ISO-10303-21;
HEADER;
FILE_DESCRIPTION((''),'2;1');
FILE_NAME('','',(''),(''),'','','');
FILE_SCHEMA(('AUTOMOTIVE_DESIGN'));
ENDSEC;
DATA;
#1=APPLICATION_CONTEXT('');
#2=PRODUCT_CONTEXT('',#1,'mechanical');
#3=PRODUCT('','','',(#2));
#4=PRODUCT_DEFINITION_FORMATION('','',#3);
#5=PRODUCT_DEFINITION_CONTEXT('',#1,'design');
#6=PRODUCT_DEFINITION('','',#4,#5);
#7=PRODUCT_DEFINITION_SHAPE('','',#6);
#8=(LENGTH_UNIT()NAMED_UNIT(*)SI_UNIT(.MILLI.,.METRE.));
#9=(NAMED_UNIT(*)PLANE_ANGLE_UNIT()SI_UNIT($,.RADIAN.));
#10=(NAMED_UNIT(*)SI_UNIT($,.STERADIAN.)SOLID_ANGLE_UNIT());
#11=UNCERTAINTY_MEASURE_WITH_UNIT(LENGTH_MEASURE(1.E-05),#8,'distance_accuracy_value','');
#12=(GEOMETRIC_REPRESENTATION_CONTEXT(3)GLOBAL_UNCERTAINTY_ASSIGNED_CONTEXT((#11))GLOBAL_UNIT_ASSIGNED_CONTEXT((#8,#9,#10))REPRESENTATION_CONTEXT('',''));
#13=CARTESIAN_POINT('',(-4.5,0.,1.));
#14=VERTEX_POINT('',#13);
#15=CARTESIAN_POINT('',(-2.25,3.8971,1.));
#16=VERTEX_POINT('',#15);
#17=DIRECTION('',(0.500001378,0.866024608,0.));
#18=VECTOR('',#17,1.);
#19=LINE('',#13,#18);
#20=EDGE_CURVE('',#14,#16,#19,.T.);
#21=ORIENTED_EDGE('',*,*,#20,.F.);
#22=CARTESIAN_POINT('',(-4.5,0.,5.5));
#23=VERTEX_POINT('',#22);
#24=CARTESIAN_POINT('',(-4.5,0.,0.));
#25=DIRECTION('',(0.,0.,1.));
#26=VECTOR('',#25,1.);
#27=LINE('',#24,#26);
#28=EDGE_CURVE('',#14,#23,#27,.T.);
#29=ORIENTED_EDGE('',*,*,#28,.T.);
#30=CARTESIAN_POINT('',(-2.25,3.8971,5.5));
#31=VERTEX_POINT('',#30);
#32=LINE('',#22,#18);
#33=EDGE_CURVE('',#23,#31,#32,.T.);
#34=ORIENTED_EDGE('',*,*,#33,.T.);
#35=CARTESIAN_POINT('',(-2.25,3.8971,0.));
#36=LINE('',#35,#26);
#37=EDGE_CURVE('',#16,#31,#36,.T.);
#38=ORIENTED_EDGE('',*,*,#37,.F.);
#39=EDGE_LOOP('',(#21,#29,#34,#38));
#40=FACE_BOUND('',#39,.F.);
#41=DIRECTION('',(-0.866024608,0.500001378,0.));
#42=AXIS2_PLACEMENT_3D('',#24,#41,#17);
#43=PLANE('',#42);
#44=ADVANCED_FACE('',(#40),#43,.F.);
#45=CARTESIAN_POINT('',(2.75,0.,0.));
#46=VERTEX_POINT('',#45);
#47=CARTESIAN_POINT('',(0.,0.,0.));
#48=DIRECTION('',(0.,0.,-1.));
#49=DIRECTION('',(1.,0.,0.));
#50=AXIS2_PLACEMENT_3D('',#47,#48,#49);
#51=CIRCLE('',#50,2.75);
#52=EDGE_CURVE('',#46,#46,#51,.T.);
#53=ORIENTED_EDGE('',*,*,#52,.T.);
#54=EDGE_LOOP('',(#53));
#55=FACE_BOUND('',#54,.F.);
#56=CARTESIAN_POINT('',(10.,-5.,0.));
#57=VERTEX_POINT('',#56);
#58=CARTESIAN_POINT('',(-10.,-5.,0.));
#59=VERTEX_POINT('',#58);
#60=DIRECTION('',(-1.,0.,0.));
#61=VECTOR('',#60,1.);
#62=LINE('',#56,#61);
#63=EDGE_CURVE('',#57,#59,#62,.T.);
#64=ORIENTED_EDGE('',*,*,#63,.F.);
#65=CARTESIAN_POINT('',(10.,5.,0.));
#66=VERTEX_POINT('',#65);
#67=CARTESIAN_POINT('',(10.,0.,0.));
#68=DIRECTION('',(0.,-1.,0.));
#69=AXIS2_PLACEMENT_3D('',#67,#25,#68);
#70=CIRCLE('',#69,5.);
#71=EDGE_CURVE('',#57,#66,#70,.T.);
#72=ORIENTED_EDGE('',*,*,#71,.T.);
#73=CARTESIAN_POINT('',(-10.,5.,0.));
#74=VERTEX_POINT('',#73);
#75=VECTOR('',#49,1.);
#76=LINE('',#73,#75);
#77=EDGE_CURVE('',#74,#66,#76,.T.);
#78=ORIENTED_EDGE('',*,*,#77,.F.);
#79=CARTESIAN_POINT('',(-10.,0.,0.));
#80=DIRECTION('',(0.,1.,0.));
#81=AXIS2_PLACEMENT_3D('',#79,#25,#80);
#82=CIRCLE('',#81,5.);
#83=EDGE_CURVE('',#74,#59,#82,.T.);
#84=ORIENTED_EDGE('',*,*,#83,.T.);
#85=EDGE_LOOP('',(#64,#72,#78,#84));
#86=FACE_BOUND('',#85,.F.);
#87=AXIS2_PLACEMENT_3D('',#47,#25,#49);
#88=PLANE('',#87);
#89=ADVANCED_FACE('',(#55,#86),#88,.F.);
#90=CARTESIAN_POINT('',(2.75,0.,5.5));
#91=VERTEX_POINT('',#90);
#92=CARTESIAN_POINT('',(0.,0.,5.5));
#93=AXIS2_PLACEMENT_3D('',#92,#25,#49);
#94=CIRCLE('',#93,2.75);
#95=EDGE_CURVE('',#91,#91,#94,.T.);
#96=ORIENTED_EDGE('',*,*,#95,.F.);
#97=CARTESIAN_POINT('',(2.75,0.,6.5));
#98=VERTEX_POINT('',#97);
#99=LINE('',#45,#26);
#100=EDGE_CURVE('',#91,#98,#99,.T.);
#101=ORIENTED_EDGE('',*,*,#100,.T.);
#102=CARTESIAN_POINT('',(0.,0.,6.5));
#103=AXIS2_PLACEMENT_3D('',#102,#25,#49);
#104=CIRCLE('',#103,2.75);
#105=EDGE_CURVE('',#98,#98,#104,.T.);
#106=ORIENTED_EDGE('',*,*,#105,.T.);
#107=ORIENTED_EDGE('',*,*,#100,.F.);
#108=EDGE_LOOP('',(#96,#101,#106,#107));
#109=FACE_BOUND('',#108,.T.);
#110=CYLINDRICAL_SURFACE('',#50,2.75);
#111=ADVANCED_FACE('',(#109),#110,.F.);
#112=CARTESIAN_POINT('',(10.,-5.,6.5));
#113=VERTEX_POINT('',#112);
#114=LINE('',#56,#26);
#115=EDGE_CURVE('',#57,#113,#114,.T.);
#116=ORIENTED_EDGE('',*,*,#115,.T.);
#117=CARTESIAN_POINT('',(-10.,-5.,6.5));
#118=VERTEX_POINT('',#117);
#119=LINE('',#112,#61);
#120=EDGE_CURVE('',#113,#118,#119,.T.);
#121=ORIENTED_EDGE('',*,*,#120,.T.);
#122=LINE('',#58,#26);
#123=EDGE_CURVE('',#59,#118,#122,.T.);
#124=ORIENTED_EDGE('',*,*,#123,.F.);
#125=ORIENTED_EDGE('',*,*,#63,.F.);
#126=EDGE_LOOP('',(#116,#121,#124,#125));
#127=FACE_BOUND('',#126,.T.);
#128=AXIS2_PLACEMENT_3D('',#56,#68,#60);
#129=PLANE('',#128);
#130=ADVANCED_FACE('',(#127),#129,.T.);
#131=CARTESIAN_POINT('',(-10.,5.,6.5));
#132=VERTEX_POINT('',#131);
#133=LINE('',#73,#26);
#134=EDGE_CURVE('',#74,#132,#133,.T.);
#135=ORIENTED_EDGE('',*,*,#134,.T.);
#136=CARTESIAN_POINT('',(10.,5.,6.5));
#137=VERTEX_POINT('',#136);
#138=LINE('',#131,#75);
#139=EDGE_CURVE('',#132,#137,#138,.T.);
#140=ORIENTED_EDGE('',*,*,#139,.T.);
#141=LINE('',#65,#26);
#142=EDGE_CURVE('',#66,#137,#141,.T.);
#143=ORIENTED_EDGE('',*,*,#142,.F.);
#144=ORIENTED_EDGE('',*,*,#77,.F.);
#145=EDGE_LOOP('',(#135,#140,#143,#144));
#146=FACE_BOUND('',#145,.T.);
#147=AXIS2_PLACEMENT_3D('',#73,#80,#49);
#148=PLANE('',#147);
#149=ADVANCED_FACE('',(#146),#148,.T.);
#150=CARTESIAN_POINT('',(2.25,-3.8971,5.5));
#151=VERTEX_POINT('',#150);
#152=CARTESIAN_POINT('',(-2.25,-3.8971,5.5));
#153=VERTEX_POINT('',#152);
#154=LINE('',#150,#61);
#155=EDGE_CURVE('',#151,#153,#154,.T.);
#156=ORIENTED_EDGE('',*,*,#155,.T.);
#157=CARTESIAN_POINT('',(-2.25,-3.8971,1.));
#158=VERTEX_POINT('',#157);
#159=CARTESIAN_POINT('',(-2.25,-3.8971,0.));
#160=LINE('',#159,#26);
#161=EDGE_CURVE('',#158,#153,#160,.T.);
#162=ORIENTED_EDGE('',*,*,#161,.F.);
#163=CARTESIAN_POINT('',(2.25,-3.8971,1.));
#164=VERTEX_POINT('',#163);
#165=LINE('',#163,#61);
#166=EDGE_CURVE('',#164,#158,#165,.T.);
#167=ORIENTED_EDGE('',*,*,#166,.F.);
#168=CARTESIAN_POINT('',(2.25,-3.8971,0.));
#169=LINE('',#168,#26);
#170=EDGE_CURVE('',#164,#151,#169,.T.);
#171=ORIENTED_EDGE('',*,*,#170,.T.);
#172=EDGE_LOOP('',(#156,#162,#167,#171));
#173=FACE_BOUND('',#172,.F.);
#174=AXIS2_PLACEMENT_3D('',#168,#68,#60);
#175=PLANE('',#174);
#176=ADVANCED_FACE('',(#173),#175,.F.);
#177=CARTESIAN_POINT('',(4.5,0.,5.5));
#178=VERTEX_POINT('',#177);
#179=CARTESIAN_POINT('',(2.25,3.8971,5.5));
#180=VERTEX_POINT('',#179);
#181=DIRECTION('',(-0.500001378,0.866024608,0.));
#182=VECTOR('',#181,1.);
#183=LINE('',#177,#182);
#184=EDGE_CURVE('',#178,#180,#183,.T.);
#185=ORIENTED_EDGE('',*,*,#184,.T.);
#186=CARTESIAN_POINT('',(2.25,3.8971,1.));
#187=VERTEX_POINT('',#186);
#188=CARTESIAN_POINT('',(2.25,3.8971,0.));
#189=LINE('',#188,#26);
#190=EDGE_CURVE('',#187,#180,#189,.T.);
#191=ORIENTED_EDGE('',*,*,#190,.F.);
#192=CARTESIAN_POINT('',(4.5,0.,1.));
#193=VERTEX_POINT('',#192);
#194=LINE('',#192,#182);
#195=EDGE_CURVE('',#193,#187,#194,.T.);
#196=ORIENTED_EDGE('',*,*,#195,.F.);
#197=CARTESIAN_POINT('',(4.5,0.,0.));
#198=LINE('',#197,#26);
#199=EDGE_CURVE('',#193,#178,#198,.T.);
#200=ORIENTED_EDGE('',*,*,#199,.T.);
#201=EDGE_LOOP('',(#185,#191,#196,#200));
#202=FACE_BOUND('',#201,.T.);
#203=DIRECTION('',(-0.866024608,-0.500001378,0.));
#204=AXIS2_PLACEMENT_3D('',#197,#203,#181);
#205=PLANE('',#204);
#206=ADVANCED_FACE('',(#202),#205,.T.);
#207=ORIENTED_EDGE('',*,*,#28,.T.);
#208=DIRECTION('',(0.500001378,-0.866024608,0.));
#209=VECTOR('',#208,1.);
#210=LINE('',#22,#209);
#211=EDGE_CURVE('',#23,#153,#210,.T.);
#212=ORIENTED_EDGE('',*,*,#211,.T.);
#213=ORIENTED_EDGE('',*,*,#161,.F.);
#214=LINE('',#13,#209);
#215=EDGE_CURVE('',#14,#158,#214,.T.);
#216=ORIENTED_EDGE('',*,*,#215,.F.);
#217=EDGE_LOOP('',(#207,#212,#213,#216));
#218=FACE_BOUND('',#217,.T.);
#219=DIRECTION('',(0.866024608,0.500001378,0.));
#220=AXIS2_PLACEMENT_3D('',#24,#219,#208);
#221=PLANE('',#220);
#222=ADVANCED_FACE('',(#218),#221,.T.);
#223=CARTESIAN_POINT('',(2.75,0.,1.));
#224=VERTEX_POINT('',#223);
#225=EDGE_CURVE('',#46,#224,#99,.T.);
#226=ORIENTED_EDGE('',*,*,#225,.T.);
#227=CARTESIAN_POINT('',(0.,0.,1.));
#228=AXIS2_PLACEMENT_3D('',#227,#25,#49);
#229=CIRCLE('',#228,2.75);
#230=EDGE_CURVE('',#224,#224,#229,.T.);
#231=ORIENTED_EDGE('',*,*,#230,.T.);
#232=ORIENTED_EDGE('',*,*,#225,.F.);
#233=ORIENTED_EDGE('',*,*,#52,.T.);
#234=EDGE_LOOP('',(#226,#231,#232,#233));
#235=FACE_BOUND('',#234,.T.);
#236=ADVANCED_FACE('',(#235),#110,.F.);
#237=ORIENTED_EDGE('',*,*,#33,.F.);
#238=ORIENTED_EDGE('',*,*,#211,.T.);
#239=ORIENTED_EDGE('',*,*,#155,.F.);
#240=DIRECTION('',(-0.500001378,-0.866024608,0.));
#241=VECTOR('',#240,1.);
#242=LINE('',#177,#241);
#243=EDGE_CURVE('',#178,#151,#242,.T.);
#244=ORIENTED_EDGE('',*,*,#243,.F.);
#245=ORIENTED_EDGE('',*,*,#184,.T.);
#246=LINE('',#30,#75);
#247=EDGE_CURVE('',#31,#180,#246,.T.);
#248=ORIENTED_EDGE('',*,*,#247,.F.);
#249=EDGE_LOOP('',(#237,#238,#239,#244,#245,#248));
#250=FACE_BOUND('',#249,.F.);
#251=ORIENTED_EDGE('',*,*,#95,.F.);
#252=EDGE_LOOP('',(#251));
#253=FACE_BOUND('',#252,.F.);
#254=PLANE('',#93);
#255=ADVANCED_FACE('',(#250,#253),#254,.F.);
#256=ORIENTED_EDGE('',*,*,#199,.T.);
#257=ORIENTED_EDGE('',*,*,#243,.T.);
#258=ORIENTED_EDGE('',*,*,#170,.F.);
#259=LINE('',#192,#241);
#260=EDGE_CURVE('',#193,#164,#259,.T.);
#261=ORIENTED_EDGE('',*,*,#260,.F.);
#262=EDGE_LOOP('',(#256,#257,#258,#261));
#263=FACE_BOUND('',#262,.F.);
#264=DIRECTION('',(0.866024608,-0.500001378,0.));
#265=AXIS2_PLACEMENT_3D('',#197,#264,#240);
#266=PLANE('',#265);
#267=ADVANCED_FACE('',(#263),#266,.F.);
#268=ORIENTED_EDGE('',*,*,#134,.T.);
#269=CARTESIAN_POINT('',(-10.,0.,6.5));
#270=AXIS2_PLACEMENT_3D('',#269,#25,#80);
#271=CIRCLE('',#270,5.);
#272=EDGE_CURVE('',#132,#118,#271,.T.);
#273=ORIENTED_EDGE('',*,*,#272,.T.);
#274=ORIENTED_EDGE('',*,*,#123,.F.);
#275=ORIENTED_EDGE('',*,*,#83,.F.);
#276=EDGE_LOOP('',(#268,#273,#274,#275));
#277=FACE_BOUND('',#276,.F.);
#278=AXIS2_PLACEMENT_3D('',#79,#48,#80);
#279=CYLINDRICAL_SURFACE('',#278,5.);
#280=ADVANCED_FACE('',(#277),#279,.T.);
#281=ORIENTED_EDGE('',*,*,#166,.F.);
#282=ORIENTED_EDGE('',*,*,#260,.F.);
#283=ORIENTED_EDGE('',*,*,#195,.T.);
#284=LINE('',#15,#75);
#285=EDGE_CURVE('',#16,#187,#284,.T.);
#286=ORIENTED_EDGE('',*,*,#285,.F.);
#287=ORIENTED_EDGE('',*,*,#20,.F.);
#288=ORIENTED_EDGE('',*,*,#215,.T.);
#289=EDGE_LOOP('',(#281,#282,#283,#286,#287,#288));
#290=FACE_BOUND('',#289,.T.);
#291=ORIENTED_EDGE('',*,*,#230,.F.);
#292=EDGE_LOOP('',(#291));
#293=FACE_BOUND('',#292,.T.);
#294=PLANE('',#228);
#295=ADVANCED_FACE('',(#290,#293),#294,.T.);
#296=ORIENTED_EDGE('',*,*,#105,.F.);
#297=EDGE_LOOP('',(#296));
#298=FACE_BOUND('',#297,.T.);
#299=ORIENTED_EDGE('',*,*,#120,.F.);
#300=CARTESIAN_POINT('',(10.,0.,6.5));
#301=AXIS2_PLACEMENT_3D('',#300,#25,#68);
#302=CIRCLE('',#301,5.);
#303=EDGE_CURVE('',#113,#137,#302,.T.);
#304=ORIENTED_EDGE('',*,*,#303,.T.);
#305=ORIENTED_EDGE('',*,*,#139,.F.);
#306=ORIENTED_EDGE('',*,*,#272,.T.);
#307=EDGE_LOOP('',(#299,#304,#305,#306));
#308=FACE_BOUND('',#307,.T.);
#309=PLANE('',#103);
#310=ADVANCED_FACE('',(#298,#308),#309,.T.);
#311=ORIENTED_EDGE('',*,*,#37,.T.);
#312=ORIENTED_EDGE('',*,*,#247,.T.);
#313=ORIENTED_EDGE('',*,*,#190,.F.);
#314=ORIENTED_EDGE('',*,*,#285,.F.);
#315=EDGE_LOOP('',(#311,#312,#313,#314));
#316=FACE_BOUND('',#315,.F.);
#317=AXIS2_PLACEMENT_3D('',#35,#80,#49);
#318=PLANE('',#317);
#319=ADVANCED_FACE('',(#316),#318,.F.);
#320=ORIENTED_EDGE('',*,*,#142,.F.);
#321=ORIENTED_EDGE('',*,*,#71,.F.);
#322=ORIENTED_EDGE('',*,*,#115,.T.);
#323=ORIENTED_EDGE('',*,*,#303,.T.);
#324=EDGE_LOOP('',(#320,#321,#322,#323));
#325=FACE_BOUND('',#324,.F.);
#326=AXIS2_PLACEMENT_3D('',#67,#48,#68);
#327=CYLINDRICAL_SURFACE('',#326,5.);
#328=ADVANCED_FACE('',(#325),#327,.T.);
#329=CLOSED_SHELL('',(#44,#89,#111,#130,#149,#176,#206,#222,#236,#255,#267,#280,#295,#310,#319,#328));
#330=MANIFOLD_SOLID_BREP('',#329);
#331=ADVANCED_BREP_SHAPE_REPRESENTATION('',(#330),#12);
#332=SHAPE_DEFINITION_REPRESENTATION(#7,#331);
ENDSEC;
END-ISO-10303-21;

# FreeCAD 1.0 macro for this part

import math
import FreeCAD as App
import Part
import Sketcher
from FreeCAD import Vector
Q = App.Units.Quantity


def add_polygon(sketch, points):
    """Adds a closed chain of lines whose ends are joined by coincident constraints."""
    first, n = sketch.GeometryCount, len(points)
    for a, b in zip(points, points[1:] + points[:1]):
        sketch.addGeometry(Part.LineSegment(App.Vector(*a, 0), App.Vector(*b, 0)), False)
    for i in range(n):
        sketch.addConstraint(Sketcher.Constraint("Coincident", first + i, 2, first + (i + 1) % n, 1))

doc = App.newDocument("Part")
body = doc.addObject("PartDesign::Body", "Body")

sketch1 = doc.addObject("Sketcher::SketchObject", "Sketch")
body.addObject(sketch1)
sketch1.AttachmentSupport = (doc.XY_Plane, [""])
sketch1.MapMode = "FlatFace"
sketch1.addGeometry([
    Part.LineSegment(Vector(10, 5, 0), Vector(-10, 5, 0)),
    Part.ArcOfCircle(Part.Circle(Vector(-10, 0, 0), Vector(0, 0, 1), 5), math.radians(90), math.radians(270)),
    Part.LineSegment(Vector(-10, -5, 0), Vector(10, -5, 0)),
    Part.ArcOfCircle(Part.Circle(Vector(10, 0, 0), Vector(0, 0, 1), 5), math.radians(-90), math.radians(90)),
    Part.Circle(Vector(0, 0, 0), Vector(0, 0, 1), 2.8),
], False)
sketch1.addConstraint([
    Sketcher.Constraint("Tangent", 0, 2, 1, 1),
    Sketcher.Constraint("Tangent", 1, 2, 2, 1),
    Sketcher.Constraint("Tangent", 2, 2, 3, 1),
    Sketcher.Constraint("Tangent", 3, 2, 0, 1),
    Sketcher.Constraint("Horizontal", 0),
    Sketcher.Constraint("Horizontal", 2),
    Sketcher.Constraint("Coincident", 4, 3, -1, 1),
    Sketcher.Constraint("Symmetric", 1, 3, 3, 3, -1, 1),
    Sketcher.Constraint("Diameter", 4, 5.5),
    Sketcher.Constraint("Radius", 1, 5.0),
    Sketcher.Constraint("DistanceX", 0, 2, 0, 1, 20.0),
])
pad1 = doc.addObject("PartDesign::Pad", "Pad")
body.addObject(pad1)
pad1.Profile = sketch1
pad1.Length = 6.5

sketch2 = doc.addObject("Sketcher::SketchObject", "Sketch001")
body.addObject(sketch2)
sketch2.AttachmentSupport = (doc.XY_Plane, [""])
sketch2.MapMode = "FlatFace"
add_polygon(sketch2, [(-2.2, 3.9), (-4.5, 0), (-2.2, -3.9), (2.2, -3.9), (4.5, 0), (2.2, 3.9)])
sketch2.addGeometry(Part.Circle(Vector(0, 0, 0), Vector(0, 0, 1), 2.8), False)
sketch2.addConstraint([
    Sketcher.Constraint("Horizontal", 2),
    Sketcher.Constraint("Horizontal", 5),
    Sketcher.Constraint("Coincident", 6, 3, -1, 1),
    Sketcher.Constraint("Symmetric", 0, 2, 3, 2, -1, 1),
    Sketcher.Constraint("Symmetric", 1, 2, 4, 2, -1, 1),
    Sketcher.Constraint("PointOnObject", 0, 2, -1),
    Sketcher.Constraint("Parallel", 0, 3),
    Sketcher.Constraint("Vertical", 2, 2, 4, 2),
    Sketcher.Constraint("Diameter", 6, 5.5),
    Sketcher.Constraint("Angle", 0, Q("-120 deg")),
    Sketcher.Constraint("DistanceX", 2, 1, 2, 2, 4.5),
    Sketcher.Constraint("DistanceX", 0, 2, 3, 2, 9.0),
])
pocket1 = doc.addObject("PartDesign::Pocket", "Pocket")
body.addObject(pocket1)
pocket1.Profile = sketch2
pocket1.Length = 5.5
pocket1.Reversed = True

sketch3 = doc.addObject("Sketcher::SketchObject", "Sketch002")
body.addObject(sketch3)
sketch3.AttachmentSupport = (doc.XY_Plane, [""])
sketch3.MapMode = "FlatFace"
add_polygon(sketch3, [(-2.2, 3.9), (-4.5, 0), (-2.2, -3.9), (2.2, -3.9), (4.5, 0), (2.2, 3.9)])
sketch3.addGeometry(Part.Circle(Vector(0, 0, 0), Vector(0, 0, 1), 2.8), False)
sketch3.addConstraint([
    Sketcher.Constraint("Horizontal", 2),
    Sketcher.Constraint("Horizontal", 5),
    Sketcher.Constraint("Coincident", 6, 3, -1, 1),
    Sketcher.Constraint("Symmetric", 0, 2, 3, 2, -1, 1),
    Sketcher.Constraint("Symmetric", 1, 2, 4, 2, -1, 1),
    Sketcher.Constraint("PointOnObject", 0, 2, -1),
    Sketcher.Constraint("Parallel", 0, 3),
    Sketcher.Constraint("Vertical", 2, 2, 4, 2),
    Sketcher.Constraint("Diameter", 6, 5.5),
    Sketcher.Constraint("Angle", 0, Q("-120 deg")),
    Sketcher.Constraint("DistanceX", 2, 1, 2, 2, 4.5),
    Sketcher.Constraint("DistanceX", 0, 2, 3, 2, 9.0),
])
pad2 = doc.addObject("PartDesign::Pad", "Pad001")
body.addObject(pad2)
pad2.Profile = sketch3
pad2.Length = 1

doc.recompute()
